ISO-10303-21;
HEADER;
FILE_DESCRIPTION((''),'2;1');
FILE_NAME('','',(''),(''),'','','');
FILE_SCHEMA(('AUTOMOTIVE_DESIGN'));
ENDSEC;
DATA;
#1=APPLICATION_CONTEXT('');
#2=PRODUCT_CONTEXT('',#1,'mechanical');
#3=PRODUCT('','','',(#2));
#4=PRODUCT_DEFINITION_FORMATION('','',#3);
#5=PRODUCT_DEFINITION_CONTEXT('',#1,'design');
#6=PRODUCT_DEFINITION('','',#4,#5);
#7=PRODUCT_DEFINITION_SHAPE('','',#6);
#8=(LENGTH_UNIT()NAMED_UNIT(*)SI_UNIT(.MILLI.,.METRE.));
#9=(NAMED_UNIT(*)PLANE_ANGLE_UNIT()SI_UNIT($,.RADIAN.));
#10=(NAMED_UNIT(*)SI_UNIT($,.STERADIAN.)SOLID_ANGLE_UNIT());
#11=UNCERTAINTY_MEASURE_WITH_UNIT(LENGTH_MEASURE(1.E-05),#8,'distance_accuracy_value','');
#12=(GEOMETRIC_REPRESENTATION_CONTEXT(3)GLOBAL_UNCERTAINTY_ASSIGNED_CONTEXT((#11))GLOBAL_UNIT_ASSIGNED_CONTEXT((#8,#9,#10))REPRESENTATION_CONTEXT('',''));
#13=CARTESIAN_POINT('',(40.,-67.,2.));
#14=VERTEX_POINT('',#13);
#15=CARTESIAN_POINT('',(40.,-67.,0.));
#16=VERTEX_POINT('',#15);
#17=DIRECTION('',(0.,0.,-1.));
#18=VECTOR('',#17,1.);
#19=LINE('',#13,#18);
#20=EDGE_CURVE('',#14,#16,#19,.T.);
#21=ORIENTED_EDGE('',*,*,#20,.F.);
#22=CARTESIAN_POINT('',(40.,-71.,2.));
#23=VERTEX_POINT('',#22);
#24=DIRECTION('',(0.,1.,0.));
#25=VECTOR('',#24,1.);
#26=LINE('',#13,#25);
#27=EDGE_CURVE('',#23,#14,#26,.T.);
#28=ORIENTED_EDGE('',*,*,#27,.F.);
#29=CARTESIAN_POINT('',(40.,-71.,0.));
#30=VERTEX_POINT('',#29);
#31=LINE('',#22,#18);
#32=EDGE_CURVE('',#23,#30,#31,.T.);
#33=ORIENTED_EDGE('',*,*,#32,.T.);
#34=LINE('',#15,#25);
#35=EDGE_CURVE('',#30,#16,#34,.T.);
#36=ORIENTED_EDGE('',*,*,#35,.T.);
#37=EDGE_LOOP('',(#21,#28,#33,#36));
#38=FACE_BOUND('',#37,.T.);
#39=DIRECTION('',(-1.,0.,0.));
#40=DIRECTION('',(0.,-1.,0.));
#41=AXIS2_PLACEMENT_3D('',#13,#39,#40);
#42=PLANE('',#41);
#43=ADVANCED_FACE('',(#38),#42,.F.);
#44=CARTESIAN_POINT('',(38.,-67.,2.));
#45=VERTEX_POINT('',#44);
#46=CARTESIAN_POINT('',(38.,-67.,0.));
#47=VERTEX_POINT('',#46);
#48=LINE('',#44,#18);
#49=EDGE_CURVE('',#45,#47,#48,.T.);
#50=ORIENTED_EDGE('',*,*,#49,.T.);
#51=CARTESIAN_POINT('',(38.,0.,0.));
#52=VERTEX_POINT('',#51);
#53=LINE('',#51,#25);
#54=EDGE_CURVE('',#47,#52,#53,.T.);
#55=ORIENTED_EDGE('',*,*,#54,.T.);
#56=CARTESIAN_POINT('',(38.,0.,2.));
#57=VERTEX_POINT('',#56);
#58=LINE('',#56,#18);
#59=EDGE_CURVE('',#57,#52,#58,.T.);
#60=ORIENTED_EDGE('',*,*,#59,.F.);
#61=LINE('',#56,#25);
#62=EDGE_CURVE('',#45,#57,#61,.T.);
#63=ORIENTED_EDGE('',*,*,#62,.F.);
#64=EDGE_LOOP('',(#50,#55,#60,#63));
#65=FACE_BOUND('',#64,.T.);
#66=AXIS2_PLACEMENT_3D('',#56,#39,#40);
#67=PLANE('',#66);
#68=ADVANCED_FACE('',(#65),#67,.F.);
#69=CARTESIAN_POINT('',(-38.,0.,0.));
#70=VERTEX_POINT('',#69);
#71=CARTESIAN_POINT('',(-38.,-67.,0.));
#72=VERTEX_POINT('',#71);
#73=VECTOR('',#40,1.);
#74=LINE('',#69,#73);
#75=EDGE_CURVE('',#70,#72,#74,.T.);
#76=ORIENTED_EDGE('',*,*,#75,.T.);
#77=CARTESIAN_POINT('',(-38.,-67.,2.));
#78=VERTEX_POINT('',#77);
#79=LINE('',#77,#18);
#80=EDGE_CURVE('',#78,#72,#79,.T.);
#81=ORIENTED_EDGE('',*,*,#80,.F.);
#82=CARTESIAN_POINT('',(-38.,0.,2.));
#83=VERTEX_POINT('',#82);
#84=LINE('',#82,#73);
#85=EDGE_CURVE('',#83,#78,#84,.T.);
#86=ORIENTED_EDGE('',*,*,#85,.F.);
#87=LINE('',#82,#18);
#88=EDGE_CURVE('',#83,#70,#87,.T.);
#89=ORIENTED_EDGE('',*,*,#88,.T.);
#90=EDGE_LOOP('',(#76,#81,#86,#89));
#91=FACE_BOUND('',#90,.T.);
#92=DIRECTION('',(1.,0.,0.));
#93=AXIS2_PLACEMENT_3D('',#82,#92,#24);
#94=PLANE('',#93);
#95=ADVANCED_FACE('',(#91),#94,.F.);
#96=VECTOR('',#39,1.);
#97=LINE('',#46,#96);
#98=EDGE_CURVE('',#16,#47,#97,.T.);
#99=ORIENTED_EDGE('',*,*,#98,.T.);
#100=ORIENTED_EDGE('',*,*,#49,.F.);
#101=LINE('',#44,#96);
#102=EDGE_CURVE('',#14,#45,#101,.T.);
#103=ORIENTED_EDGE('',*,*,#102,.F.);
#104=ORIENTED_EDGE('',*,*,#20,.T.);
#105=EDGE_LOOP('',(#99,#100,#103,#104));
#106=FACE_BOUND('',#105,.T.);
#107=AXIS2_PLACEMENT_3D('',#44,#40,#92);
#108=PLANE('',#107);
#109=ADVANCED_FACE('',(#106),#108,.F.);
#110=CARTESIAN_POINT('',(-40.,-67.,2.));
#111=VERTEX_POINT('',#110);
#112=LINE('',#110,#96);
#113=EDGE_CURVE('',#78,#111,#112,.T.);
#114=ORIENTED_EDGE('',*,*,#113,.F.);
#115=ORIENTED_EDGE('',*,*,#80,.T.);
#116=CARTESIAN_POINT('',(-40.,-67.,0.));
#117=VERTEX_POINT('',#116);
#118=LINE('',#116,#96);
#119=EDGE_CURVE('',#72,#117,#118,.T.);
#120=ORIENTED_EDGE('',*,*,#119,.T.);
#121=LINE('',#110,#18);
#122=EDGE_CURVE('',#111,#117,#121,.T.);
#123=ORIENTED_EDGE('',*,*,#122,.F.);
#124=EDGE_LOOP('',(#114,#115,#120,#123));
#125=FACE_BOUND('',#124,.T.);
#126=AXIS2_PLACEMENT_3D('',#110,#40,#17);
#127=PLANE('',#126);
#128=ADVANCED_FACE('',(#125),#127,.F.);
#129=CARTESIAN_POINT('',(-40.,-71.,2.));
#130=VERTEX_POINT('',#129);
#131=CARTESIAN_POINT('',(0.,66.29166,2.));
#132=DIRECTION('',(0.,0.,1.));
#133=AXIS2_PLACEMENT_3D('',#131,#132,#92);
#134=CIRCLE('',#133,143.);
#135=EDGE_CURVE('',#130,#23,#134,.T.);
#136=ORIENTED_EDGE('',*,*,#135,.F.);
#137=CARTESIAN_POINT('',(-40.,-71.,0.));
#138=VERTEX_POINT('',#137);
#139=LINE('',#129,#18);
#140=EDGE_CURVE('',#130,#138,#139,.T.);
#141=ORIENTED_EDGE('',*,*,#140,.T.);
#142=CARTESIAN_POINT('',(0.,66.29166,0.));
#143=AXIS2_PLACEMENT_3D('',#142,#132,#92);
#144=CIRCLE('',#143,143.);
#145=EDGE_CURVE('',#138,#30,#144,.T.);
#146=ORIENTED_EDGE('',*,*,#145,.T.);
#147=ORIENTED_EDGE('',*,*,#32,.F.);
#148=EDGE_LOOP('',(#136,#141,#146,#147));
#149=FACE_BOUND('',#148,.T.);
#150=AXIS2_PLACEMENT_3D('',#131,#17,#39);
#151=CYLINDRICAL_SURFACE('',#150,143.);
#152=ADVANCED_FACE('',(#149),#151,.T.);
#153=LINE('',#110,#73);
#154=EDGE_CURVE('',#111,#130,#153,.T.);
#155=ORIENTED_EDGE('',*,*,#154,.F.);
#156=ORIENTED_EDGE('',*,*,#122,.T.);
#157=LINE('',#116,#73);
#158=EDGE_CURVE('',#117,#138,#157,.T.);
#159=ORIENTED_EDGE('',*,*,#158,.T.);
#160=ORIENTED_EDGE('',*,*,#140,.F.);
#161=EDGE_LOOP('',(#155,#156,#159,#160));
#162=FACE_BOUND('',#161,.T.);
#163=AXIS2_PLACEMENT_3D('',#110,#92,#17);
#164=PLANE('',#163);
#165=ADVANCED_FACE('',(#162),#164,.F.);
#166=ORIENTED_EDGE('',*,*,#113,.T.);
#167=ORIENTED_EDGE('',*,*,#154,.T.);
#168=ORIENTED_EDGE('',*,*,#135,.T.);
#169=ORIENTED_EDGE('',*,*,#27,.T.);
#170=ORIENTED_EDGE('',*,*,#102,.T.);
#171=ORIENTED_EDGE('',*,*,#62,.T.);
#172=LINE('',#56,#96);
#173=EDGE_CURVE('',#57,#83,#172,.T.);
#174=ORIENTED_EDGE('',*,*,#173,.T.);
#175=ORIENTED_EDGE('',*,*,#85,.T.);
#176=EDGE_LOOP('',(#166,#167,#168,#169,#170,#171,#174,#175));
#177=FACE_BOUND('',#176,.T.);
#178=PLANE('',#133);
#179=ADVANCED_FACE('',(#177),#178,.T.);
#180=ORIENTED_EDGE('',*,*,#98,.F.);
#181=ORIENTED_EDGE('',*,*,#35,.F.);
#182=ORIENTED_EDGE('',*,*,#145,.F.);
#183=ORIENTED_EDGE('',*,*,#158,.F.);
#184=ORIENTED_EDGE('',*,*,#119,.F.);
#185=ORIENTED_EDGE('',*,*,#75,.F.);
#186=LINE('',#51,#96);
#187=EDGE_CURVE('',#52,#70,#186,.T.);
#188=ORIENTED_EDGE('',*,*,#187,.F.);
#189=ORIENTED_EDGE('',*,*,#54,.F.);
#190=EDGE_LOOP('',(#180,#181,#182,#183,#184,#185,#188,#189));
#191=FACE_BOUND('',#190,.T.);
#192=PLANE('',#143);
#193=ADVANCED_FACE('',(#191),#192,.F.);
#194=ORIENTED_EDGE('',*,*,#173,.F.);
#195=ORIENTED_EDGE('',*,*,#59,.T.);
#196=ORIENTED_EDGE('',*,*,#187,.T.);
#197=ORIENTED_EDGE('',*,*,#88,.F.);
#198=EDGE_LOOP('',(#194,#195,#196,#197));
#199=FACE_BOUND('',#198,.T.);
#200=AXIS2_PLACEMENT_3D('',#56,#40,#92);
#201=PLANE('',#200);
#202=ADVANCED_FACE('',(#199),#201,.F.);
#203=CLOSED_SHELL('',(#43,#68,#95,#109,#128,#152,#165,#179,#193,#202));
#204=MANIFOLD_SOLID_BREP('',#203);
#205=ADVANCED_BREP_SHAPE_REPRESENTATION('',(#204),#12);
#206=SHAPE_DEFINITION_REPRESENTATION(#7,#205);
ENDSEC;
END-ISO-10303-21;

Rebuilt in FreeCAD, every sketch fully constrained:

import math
import FreeCAD as App
import Part
import Sketcher
from FreeCAD import Vector
Q = App.Units.Quantity

doc = App.newDocument("Part")
body = doc.addObject("PartDesign::Body", "Body")

# Sketch on XY plane
sketch1 = body.newObject("Sketcher::SketchObject", "Sketch")
sketch1.AttachmentSupport = (doc.getObject("XY_Plane"), [""])
sketch1.MapMode = "FlatFace"
sketch1.addGeometry([
    Part.LineSegment(Vector(38, 0, 0), Vector(-38, 0, 0)),  # 0
    Part.LineSegment(Vector(-38, 0, 0), Vector(-38, -67, 0)),  # 1
    Part.LineSegment(Vector(-38, -67, 0), Vector(-40, -67, 0)),  # 2
    Part.LineSegment(Vector(-40, -67, 0), Vector(-40, -71, 0)),  # 3
    Part.ArcOfCircle(Part.Circle(Vector(0, 66.29166, 0), Vector(0, 0, 1), 143), math.radians(-106.243511), math.radians(-73.756489)),  # 4
    Part.LineSegment(Vector(40, -71, 0), Vector(40, -67, 0)),  # 5
    Part.LineSegment(Vector(40, -67, 0), Vector(38, -67, 0)),  # 6
    Part.LineSegment(Vector(38, -67, 0), Vector(38, 0, 0)),  # 7
], False)
sketch1.addConstraint([
    Sketcher.Constraint("Coincident", 0, 2, 1, 1),
    Sketcher.Constraint("Coincident", 1, 2, 2, 1),
    Sketcher.Constraint("Coincident", 2, 2, 3, 1),
    Sketcher.Constraint("Coincident", 3, 2, 4, 1),
    Sketcher.Constraint("Coincident", 4, 2, 5, 1),
    Sketcher.Constraint("Coincident", 5, 2, 6, 1),
    Sketcher.Constraint("Coincident", 6, 2, 7, 1),
    Sketcher.Constraint("Coincident", 7, 2, 0, 1),
    Sketcher.Constraint("Horizontal", 0),
    Sketcher.Constraint("Vertical", 1),
    Sketcher.Constraint("Horizontal", 2),
    Sketcher.Constraint("Vertical", 3),
    Sketcher.Constraint("Vertical", 5),
    Sketcher.Constraint("Horizontal", 6),
    Sketcher.Constraint("Vertical", 7),
    Sketcher.Constraint("Symmetric", 0, 2, 7, 2, -1, 1),
    Sketcher.Constraint("Symmetric", 3, 2, 4, 2, -2),
    Sketcher.Constraint("Horizontal", 2, 2, 5, 2),
    Sketcher.Constraint("Radius", 4, Q("143 mm")),
    Sketcher.Constraint("DistanceX", 0, 2, 0, 1, Q("76 mm")),
    Sketcher.Constraint("DistanceX", 2, 2, 2, 1, Q("2 mm")),
    Sketcher.Constraint("DistanceY", 1, 2, 1, 1, Q("67 mm")),
    Sketcher.Constraint("DistanceY", 3, 2, 3, 1, Q("4 mm")),
])
pad1 = body.newObject("PartDesign::Pad", "Pad")
pad1.Profile = sketch1
pad1.Length = 2

doc.recompute()
